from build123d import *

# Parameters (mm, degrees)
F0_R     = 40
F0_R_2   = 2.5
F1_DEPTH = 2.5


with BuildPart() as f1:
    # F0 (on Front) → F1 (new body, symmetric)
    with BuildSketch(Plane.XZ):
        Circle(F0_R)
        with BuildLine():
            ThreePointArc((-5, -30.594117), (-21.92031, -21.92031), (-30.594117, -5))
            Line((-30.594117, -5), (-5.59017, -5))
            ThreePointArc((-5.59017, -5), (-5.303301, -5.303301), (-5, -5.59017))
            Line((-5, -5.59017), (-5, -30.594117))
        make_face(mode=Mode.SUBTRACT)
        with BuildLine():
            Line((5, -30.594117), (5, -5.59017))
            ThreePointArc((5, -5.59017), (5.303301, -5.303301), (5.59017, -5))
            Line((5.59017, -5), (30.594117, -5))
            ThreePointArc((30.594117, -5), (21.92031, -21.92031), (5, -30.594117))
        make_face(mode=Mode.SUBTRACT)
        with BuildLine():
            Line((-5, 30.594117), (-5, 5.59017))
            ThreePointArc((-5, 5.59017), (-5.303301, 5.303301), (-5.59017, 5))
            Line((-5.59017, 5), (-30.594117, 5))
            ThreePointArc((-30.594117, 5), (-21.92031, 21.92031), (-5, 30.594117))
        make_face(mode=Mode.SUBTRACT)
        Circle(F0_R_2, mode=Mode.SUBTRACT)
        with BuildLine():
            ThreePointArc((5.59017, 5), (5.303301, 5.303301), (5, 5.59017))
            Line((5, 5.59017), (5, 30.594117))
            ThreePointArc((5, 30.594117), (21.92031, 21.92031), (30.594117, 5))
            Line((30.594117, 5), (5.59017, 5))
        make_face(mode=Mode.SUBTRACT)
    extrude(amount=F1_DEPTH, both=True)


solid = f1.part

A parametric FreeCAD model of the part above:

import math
import FreeCAD as App
import Part
import Sketcher

V = App.Vector
Q = App.Units.Quantity

doc = App.newDocument("Part")
body = doc.addObject("PartDesign::Body", "Body")

sketch1 = body.newObject("Sketcher::SketchObject", "Sketch")
sketch1.AttachmentSupport = (doc.getObject("XZ_Plane"), [""])
sketch1.MapMode = "FlatFace"
sketch1.addGeometry(Part.Circle(V(0, 0, 0), V(0, 0, 1), 40), False)
sketch1.addGeometry(Part.LineSegment(V(-5, -5.59017, 0), V(-5, -30.594117, 0)), False)
sketch1.addGeometry(Part.ArcOfCircle(Part.Circle(V(0.000001, 0.000001, 0), V(0, 0, 1), 31.000001), math.radians(-170.7182), math.radians(-99.2818)), False)
sketch1.addGeometry(Part.LineSegment(V(-30.594117, -5, 0), V(-5.59017, -5, 0)), False)
sketch1.addGeometry(Part.ArcOfCircle(Part.Circle(V(-0.000072, -0.000072, 0), V(0, 0, 1), 7.499898), math.radians(-138.189729), math.radians(-131.810271)), False)
sketch1.addGeometry(Part.Circle(V(0, 0, 0), V(0, 0, 1), 2.5), False)
sketch1.addGeometry(Part.ArcOfCircle(Part.Circle(V(-0.000001, 0.000001, 0), V(0, 0, 1), 31.000001), math.radians(-80.7182), math.radians(-9.2818)), False)
sketch1.addGeometry(Part.LineSegment(V(5, -30.594117, 0), V(5, -5.59017, 0)), False)
sketch1.addGeometry(Part.ArcOfCircle(Part.Circle(V(0.000072, -0.000072, 0), V(0, 0, 1), 7.499898), math.radians(-48.189729), math.radians(-41.810271)), False)
sketch1.addGeometry(Part.LineSegment(V(5.59017, -5, 0), V(30.594117, -5, 0)), False)
sketch1.addGeometry(Part.ArcOfCircle(Part.Circle(V(0.000001, -0.000001, 0), V(0, 0, 1), 31.000001), math.radians(99.2818), math.radians(170.7182)), False)
sketch1.addGeometry(Part.LineSegment(V(-5, 30.594117, 0), V(-5, 5.59017, 0)), False)
sketch1.addGeometry(Part.ArcOfCircle(Part.Circle(V(-0.000072, 0.000072, 0), V(0, 0, 1), 7.499898), math.radians(131.810271), math.radians(138.189729)), False)
sketch1.addGeometry(Part.LineSegment(V(-5.59017, 5, 0), V(-30.594117, 5, 0)), False)
sketch1.addGeometry(Part.LineSegment(V(30.594117, 5, 0), V(5.59017, 5, 0)), False)
sketch1.addGeometry(Part.ArcOfCircle(Part.Circle(V(0.000072, 0.000072, 0), V(0, 0, 1), 7.499898), math.radians(41.810271), math.radians(48.189729)), False)
sketch1.addGeometry(Part.LineSegment(V(5, 5.59017, 0), V(5, 30.594117, 0)), False)
sketch1.addGeometry(Part.ArcOfCircle(Part.Circle(V(-0.000001, -0.000001, 0), V(0, 0, 1), 31.000001), math.radians(9.2818), math.radians(80.7182)), False)
sketch1.addConstraint(Sketcher.Constraint("Coincident", 1, 2, 2, 2))
sketch1.addConstraint(Sketcher.Constraint("Coincident", 2, 1, 3, 1))
sketch1.addConstraint(Sketcher.Constraint("Coincident", 3, 2, 4, 1))
sketch1.addConstraint(Sketcher.Constraint("Coincident", 4, 2, 1, 1))
sketch1.addConstraint(Sketcher.Constraint("Coincident", 6, 1, 7, 1))
sketch1.addConstraint(Sketcher.Constraint("Coincident", 7, 2, 8, 1))
sketch1.addConstraint(Sketcher.Constraint("Coincident", 8, 2, 9, 1))
sketch1.addConstraint(Sketcher.Constraint("Coincident", 9, 2, 6, 2))
sketch1.addConstraint(Sketcher.Constraint("Coincident", 10, 1, 11, 1))
sketch1.addConstraint(Sketcher.Constraint("Coincident", 11, 2, 12, 1))
sketch1.addConstraint(Sketcher.Constraint("Coincident", 12, 2, 13, 1))
sketch1.addConstraint(Sketcher.Constraint("Coincident", 13, 2, 10, 2))
sketch1.addConstraint(Sketcher.Constraint("Coincident", 14, 2, 15, 1))
sketch1.addConstraint(Sketcher.Constraint("Coincident", 15, 2, 16, 1))
sketch1.addConstraint(Sketcher.Constraint("Coincident", 16, 2, 17, 2))
sketch1.addConstraint(Sketcher.Constraint("Coincident", 17, 1, 14, 1))
sketch1.addConstraint(Sketcher.Constraint("Vertical", 1))
sketch1.addConstraint(Sketcher.Constraint("Horizontal", 3))
sketch1.addConstraint(Sketcher.Constraint("Vertical", 7))
sketch1.addConstraint(Sketcher.Constraint("Horizontal", 9))
sketch1.addConstraint(Sketcher.Constraint("Vertical", 11))
sketch1.addConstraint(Sketcher.Constraint("Horizontal", 13))
sketch1.addConstraint(Sketcher.Constraint("Horizontal", 14))
sketch1.addConstraint(Sketcher.Constraint("Vertical", 16))
sketch1.addConstraint(Sketcher.Constraint("Coincident", 0, 3, -1, 1))
sketch1.addConstraint(Sketcher.Constraint("Coincident", 2, 3, -1, 1))
sketch1.addConstraint(Sketcher.Constraint("Coincident", 5, 3, -1, 1))
sketch1.addConstraint(Sketcher.Constraint("Coincident", 6, 3, -1, 1))
sketch1.addConstraint(Sketcher.Constraint("Coincident", 10, 3, -1, 1))
sketch1.addConstraint(Sketcher.Constraint("Coincident", 17, 3, -1, 1))
sketch1.addConstraint(Sketcher.Constraint("Equal", 2, 6))
sketch1.addConstraint(Sketcher.Constraint("Equal", 4, 8))
sketch1.addConstraint(Sketcher.Constraint("Equal", 6, 10))
sketch1.addConstraint(Sketcher.Constraint("Equal", 8, 12))
sketch1.addConstraint(Sketcher.Constraint("Equal", 12, 15))
sketch1.addConstraint(Sketcher.Constraint("Equal", 10, 17))
sketch1.addConstraint(Sketcher.Constraint("Symmetric", 8, 3, 12, 3, -1, 1))
sketch1.addConstraint(Sketcher.Constraint("Symmetric", 4, 3, 15, 3, -1, 1))
sketch1.addConstraint(Sketcher.Constraint("Symmetric", 4, 3, 8, 3, -2))
sketch1.addConstraint(Sketcher.Constraint("Horizontal", 1, 2, 6, 1))
sketch1.addConstraint(Sketcher.Constraint("Horizontal", 3, 2, 8, 2))
sketch1.addConstraint(Sketcher.Constraint("Horizontal", 13, 2, 14, 2))
sketch1.addConstraint(Sketcher.Constraint("Horizontal", 11, 2, 15, 2))
sketch1.addConstraint(Sketcher.Constraint("Vertical", 4, 2, 10, 1))
sketch1.addConstraint(Sketcher.Constraint("Vertical", 3, 2, 12, 2))
sketch1.addConstraint(Sketcher.Constraint("Equal", 14, 1))
sketch1.addConstraint(Sketcher.Constraint("Diameter", 0, Q("80 mm")))
sketch1.addConstraint(Sketcher.Constraint("Diameter", 5, Q("5 mm")))
sketch1.addConstraint(Sketcher.Constraint("Radius", 2, Q("31.000001 mm")))
sketch1.addConstraint(Sketcher.Constraint("DistanceX", 1, 2, -1, 1, Q("5 mm")))
sketch1.addConstraint(Sketcher.Constraint("DistanceY", 2, 1, -1, 1, Q("5 mm")))
sketch1.addConstraint(Sketcher.Constraint("Radius", 4, Q("7.499898 mm")))
sketch1.addConstraint(Sketcher.Constraint("DistanceX", 3, 2, 4, 3, Q("5.590098 mm")))
pad1 = body.newObject("PartDesign::Pad", "Pad")
pad1.Profile = sketch1
pad1.Length = 5
pad1.Midplane = True

doc.recompute()
